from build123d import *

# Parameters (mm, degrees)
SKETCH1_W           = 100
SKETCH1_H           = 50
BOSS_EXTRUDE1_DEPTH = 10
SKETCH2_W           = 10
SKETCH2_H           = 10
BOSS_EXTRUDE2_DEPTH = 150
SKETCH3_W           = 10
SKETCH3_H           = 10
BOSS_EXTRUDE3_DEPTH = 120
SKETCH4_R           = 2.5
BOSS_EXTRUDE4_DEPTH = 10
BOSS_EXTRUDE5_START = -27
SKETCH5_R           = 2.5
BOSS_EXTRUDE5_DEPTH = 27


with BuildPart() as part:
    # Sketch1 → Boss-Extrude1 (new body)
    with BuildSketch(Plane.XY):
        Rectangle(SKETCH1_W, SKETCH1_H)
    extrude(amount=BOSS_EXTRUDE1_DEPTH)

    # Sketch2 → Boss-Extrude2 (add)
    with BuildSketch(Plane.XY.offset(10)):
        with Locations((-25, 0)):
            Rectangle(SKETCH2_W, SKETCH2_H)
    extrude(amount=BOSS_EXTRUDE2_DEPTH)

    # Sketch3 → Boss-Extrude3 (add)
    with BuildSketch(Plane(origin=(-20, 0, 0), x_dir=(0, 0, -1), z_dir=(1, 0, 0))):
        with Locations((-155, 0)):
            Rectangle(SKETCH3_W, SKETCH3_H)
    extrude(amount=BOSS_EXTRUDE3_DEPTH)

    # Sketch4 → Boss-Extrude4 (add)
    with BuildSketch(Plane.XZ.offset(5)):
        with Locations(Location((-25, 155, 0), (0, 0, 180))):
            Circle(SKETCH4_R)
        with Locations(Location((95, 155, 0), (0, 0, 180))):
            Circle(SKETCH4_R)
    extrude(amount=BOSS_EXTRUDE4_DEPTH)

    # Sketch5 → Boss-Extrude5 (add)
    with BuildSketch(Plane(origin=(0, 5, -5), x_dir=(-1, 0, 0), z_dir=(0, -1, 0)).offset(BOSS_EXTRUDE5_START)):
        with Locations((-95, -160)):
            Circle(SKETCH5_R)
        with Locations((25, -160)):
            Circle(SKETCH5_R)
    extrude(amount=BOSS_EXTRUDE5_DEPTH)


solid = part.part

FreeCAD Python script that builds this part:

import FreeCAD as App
import Part
import Sketcher
from FreeCAD import Vector

doc = App.newDocument("Part")
body = doc.addObject("PartDesign::Body", "Body")

# Sketch on XY plane
sketch1 = body.newObject("Sketcher::SketchObject", "Sketch")
sketch1.AttachmentSupport = (doc.getObject("XY_Plane"), [""])
sketch1.MapMode = "FlatFace"
sketch1.addGeometry([
    Part.LineSegment(Vector(-50, 25, 0), Vector(-50, -25, 0)),
    Part.LineSegment(Vector(-50, -25, 0), Vector(50, -25, 0)),
    Part.LineSegment(Vector(50, -25, 0), Vector(50, 25, 0)),
    Part.LineSegment(Vector(50, 25, 0), Vector(-50, 25, 0)),
], False)
sketch1.addConstraint([
    Sketcher.Constraint("Coincident", 0, 2, 1, 1),
    Sketcher.Constraint("Coincident", 1, 2, 2, 1),
    Sketcher.Constraint("Coincident", 2, 2, 3, 1),
    Sketcher.Constraint("Coincident", 3, 2, 0, 1),
    Sketcher.Constraint("Vertical", 0),
    Sketcher.Constraint("Horizontal", 1),
    Sketcher.Constraint("Vertical", 2),
    Sketcher.Constraint("Horizontal", 3),
    Sketcher.Constraint("Symmetric", 0, 2, 2, 2, -1, 1),
    Sketcher.Constraint("DistanceX", 1, 1, 1, 2, 100.0),
    Sketcher.Constraint("DistanceY", 0, 2, 0, 1, 50.0),
])
pad1 = body.newObject("PartDesign::Pad", "Pad")
pad1.Profile = sketch1
pad1.Length = 10

# Sketch on XY plane
sketch2 = body.newObject("Sketcher::SketchObject", "Sketch001")
sketch2.AttachmentSupport = (doc.getObject("XY_Plane"), [""])
sketch2.MapMode = "FlatFace"
sketch2.AttachmentOffset = App.Placement(Vector(0, 0, 10), App.Rotation())
sketch2.addGeometry([
    Part.LineSegment(Vector(-30, 5, 0), Vector(-30, -5, 0)),
    Part.LineSegment(Vector(-30, -5, 0), Vector(-20, -5, 0)),
    Part.LineSegment(Vector(-20, -5, 0), Vector(-20, 5, 0)),
    Part.LineSegment(Vector(-20, 5, 0), Vector(-30, 5, 0)),
], False)
sketch2.addConstraint([
    Sketcher.Constraint("Coincident", 0, 2, 1, 1),
    Sketcher.Constraint("Coincident", 1, 2, 2, 1),
    Sketcher.Constraint("Coincident", 2, 2, 3, 1),
    Sketcher.Constraint("Coincident", 3, 2, 0, 1),
    Sketcher.Constraint("Vertical", 0),
    Sketcher.Constraint("Horizontal", 1),
    Sketcher.Constraint("Vertical", 2),
    Sketcher.Constraint("Horizontal", 3),
    Sketcher.Constraint("Equal", 3, 0),
    Sketcher.Constraint("DistanceX", 1, 1, 1, 2, 10.0),
    Sketcher.Constraint("DistanceX", 0, 2, -1, 1, 30.0),
    Sketcher.Constraint("DistanceY", 0, 2, -1, 1, 5.0),
])
pad2 = body.newObject("PartDesign::Pad", "Pad001")
pad2.Profile = sketch2
pad2.Length = 150

# Sketch on YZ plane
sketch3 = body.newObject("Sketcher::SketchObject", "Sketch002")
sketch3.AttachmentSupport = (doc.getObject("YZ_Plane"), [""])
sketch3.MapMode = "FlatFace"
sketch3.AttachmentOffset = App.Placement(Vector(0, 0, -20), App.Rotation())
sketch3.addGeometry([
    Part.LineSegment(Vector(5, 160, 0), Vector(-5, 160, 0)),
    Part.LineSegment(Vector(-5, 160, 0), Vector(-5, 150, 0)),
    Part.LineSegment(Vector(-5, 150, 0), Vector(5, 150, 0)),
    Part.LineSegment(Vector(5, 150, 0), Vector(5, 160, 0)),
], False)
sketch3.addConstraint([
    Sketcher.Constraint("Coincident", 0, 2, 1, 1),
    Sketcher.Constraint("Coincident", 1, 2, 2, 1),
    Sketcher.Constraint("Coincident", 2, 2, 3, 1),
    Sketcher.Constraint("Coincident", 3, 2, 0, 1),
    Sketcher.Constraint("Horizontal", 0),
    Sketcher.Constraint("Vertical", 1),
    Sketcher.Constraint("Horizontal", 2),
    Sketcher.Constraint("Vertical", 3),
    Sketcher.Constraint("Equal", 2, 1),
    Sketcher.Constraint("DistanceX", 0, 2, 0, 1, 10.0),
    Sketcher.Constraint("DistanceX", 0, 2, -1, 1, 5.0),
    Sketcher.Constraint("DistanceY", -1, 1, 0, 2, 160.0),
])
pad3 = body.newObject("PartDesign::Pad", "Pad002")
pad3.Profile = sketch3
pad3.Length = 120

# Sketch on XZ plane
sketch4 = body.newObject("Sketcher::SketchObject", "Sketch003")
sketch4.AttachmentSupport = (doc.getObject("XZ_Plane"), [""])
sketch4.MapMode = "FlatFace"
sketch4.AttachmentOffset = App.Placement(Vector(0, 0, 5), App.Rotation())
sketch4.addGeometry([
    Part.Circle(Vector(-25, 155, 0), Vector(0, 0, 1), 2.5),
    Part.Circle(Vector(95, 155, 0), Vector(0, 0, 1), 2.5),
], False)
sketch4.addConstraint([
    Sketcher.Constraint("Equal", 0, 1),
    Sketcher.Constraint("Horizontal", 0, 3, 1, 3),
    Sketcher.Constraint("Diameter", 0, 5.0),
    Sketcher.Constraint("DistanceX", 0, 3, -1, 1, 25.0),
    Sketcher.Constraint("DistanceY", -1, 1, 0, 3, 155.0),
    Sketcher.Constraint("DistanceX", -1, 1, 1, 3, 95.0),
])
pad4 = body.newObject("PartDesign::Pad", "Pad003")
pad4.Profile = sketch4
pad4.Length = 10

# Sketch on XZ plane
sketch5 = body.newObject("Sketcher::SketchObject", "Sketch004")
sketch5.AttachmentSupport = (doc.getObject("XZ_Plane"), [""])
sketch5.MapMode = "FlatFace"
sketch5.AttachmentOffset = App.Placement(Vector(0, 0, -32), App.Rotation())
sketch5.addGeometry([
    Part.Circle(Vector(95, 155, 0), Vector(0, 0, 1), 2.5),
    Part.Circle(Vector(-25, 155, 0), Vector(0, 0, 1), 2.5),
], False)
sketch5.addConstraint([
    Sketcher.Constraint("Equal", 0, 1),
    Sketcher.Constraint("Horizontal", 0, 3, 1, 3),
    Sketcher.Constraint("Diameter", 0, 5.0),
    Sketcher.Constraint("DistanceX", -1, 1, 0, 3, 95.0),
    Sketcher.Constraint("DistanceY", -1, 1, 0, 3, 155.0),
    Sketcher.Constraint("DistanceX", 1, 3, -1, 1, 25.0),
])
pad5 = body.newObject("PartDesign::Pad", "Pad004")
pad5.Profile = sketch5
pad5.Length = 27

doc.recompute()
